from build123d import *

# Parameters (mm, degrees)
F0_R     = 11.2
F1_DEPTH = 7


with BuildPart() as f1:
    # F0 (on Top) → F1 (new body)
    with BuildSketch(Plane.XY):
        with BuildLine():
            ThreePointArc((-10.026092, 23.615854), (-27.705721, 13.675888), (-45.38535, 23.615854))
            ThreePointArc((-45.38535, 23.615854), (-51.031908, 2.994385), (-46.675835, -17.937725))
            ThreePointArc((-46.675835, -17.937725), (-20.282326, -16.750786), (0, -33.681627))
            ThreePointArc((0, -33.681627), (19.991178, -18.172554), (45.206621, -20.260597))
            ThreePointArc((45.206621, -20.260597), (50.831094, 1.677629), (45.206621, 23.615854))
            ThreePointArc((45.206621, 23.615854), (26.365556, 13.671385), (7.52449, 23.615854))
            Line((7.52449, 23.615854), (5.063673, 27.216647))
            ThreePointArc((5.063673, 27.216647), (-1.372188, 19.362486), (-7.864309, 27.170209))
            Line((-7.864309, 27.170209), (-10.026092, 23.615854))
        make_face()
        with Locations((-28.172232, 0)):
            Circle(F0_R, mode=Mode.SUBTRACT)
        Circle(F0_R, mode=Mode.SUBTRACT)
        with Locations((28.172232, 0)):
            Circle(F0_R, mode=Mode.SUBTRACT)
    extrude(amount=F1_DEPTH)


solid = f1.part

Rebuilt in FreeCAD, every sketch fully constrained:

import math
import FreeCAD as App
import Part
import Sketcher
Q = App.Units.Quantity

doc = App.newDocument("Part")
body = doc.addObject("PartDesign::Body", "Body")

sketch1 = body.newObject("Sketcher::SketchObject", "Sketch")
sketch1.AttachmentSupport = (doc.getObject("XY_Plane"), [""])
sketch1.MapMode = "FlatFace"
sketch1.addGeometry(Part.ArcOfCircle(Part.Circle(App.Vector(-27.7, 34.4, 0), App.Vector(0, 0, 1), 20.7), math.radians(-149), math.radians(-31)), False)
sketch1.addGeometry(Part.ArcOfCircle(Part.Circle(App.Vector(-5.4, 1.6, 0), App.Vector(0, 0, 1), 45.7), math.radians(151), math.radians(205)), False)
sketch1.addGeometry(Part.ArcOfCircle(Part.Circle(App.Vector(-32, -51.3, 0), App.Vector(0, 0, 1), 36.5), math.radians(29), math.radians(114)), False)
sketch1.addGeometry(Part.ArcOfCircle(Part.Circle(App.Vector(29.9, -51.6, 0), App.Vector(0, 0, 1), 34.9), math.radians(64), math.radians(149)), False)
sketch1.addGeometry(Part.ArcOfCircle(Part.Circle(App.Vector(5.2, 1.7, 0), App.Vector(0, 0, 1), 45.6), math.radians(-29), math.radians(29)), False)
sketch1.addGeometry(Part.ArcOfCircle(Part.Circle(App.Vector(26.4, 36.5, 0), App.Vector(0, 0, 1), 22.8), math.radians(-146), math.radians(-34)), False)
sketch1.addGeometry(Part.LineSegment(App.Vector(7.5, 23.6, 0), App.Vector(5.1, 27.2, 0)), False)
sketch1.addGeometry(Part.ArcOfCircle(Part.Circle(App.Vector(-1.4, 25.9, 0), App.Vector(0, 0, 1), 6.6), math.radians(169), math.radians(371)), False)
sketch1.addGeometry(Part.LineSegment(App.Vector(-7.9, 27.2, 0), App.Vector(-10, 23.6, 0)), False)
sketch1.addGeometry(Part.Circle(App.Vector(-28.2, 0, 0), App.Vector(0, 0, 1), 11.2), False)
sketch1.addGeometry(Part.Circle(App.Vector(0, 0, 0), App.Vector(0, 0, 1), 11.2), False)
sketch1.addGeometry(Part.Circle(App.Vector(28.2, 0, 0), App.Vector(0, 0, 1), 11.2), False)
sketch1.addConstraint(Sketcher.Constraint("Coincident", 0, 1, 1, 1))
sketch1.addConstraint(Sketcher.Constraint("Coincident", 1, 2, 2, 2))
sketch1.addConstraint(Sketcher.Constraint("Coincident", 2, 1, 3, 2))
sketch1.addConstraint(Sketcher.Constraint("Coincident", 3, 1, 4, 1))
sketch1.addConstraint(Sketcher.Constraint("Coincident", 4, 2, 5, 2))
sketch1.addConstraint(Sketcher.Constraint("Tangent", 5, 1, 6, 1))
sketch1.addConstraint(Sketcher.Constraint("Coincident", 6, 2, 7, 2))
sketch1.addConstraint(Sketcher.Constraint("Coincident", 7, 1, 8, 1))
sketch1.addConstraint(Sketcher.Constraint("Tangent", 8, 2, 0, 2))
sketch1.addConstraint(Sketcher.Constraint("Coincident", 10, 3, -1, 1))
sketch1.addConstraint(Sketcher.Constraint("Equal", 9, 10))
sketch1.addConstraint(Sketcher.Constraint("Equal", 10, 11))
sketch1.addConstraint(Sketcher.Constraint("Symmetric", 9, 3, 11, 3, -1, 1))
sketch1.addConstraint(Sketcher.Constraint("PointOnObject", 9, 3, -1))
sketch1.addConstraint(Sketcher.Constraint("PointOnObject", 2, 1, -2))
sketch1.addConstraint(Sketcher.Constraint("Horizontal", 0, 1, 4, 2))
sketch1.addConstraint(Sketcher.Constraint("Horizontal", 4, 2, 5, 1))
sketch1.addConstraint(Sketcher.Constraint("Horizontal", 5, 1, 8, 2))
sketch1.addConstraint(Sketcher.Constraint("Vertical", 3, 1, 4, 2))
sketch1.addConstraint(Sketcher.Constraint("Diameter", 9, Q("22.4 mm")))
sketch1.addConstraint(Sketcher.Constraint("Radius", 4, Q("45.597199 mm")))
sketch1.addConstraint(Sketcher.Constraint("Radius", 2, Q("36.506339 mm")))
sketch1.addConstraint(Sketcher.Constraint("Radius", 3, Q("34.875259 mm")))
sketch1.addConstraint(Sketcher.Constraint("Radius", 7, Q("6.583339 mm")))
sketch1.addConstraint(Sketcher.Constraint("Radius", 0, Q("20.692838 mm")))
sketch1.addConstraint(Sketcher.Constraint("Radius", 1, Q("45.678814 mm")))
sketch1.addConstraint(Sketcher.Constraint("Radius", 5, Q("22.820636 mm")))
sketch1.addConstraint(Sketcher.Constraint("DistanceX", 1, 3, 4, 3, Q("10.609001 mm")))
sketch1.addConstraint(Sketcher.Constraint("DistanceY", 2, 3, 1, 2, Q("33.404599 mm")))
sketch1.addConstraint(Sketcher.Constraint("DistanceX", 7, 1, 5, 1, Q("15.388799 mm")))
sketch1.addConstraint(Sketcher.Constraint("DistanceX", 0, 3, -1, 1, Q("27.705721 mm")))
sketch1.addConstraint(Sketcher.Constraint("DistanceY", -1, 1, 1, 3, Q("1.576471 mm")))
sketch1.addConstraint(Sketcher.Constraint("DistanceX", -1, 1, 3, 3, Q("29.91683 mm")))
sketch1.addConstraint(Sketcher.Constraint("DistanceY", 3, 3, -1, 1, Q("51.605548 mm")))
sketch1.addConstraint(Sketcher.Constraint("DistanceY", -1, 1, 4, 3, Q("1.677628 mm")))
sketch1.addConstraint(Sketcher.Constraint("DistanceY", -1, 1, 5, 3, Q("36.492021 mm")))
sketch1.addConstraint(Sketcher.Constraint("DistanceX", 0, 1, -1, 1, Q("45.38535 mm")))
sketch1.addConstraint(Sketcher.Constraint("DistanceX", 1, 3, 7, 3, Q("3.97927 mm")))
sketch1.addConstraint(Sketcher.Constraint("DistanceX", 9, 3, 0, 3, Q("0.466511 mm")))
pad1 = body.newObject("PartDesign::Pad", "Pad")
pad1.Profile = sketch1
pad1.Length = 7

doc.recompute()
